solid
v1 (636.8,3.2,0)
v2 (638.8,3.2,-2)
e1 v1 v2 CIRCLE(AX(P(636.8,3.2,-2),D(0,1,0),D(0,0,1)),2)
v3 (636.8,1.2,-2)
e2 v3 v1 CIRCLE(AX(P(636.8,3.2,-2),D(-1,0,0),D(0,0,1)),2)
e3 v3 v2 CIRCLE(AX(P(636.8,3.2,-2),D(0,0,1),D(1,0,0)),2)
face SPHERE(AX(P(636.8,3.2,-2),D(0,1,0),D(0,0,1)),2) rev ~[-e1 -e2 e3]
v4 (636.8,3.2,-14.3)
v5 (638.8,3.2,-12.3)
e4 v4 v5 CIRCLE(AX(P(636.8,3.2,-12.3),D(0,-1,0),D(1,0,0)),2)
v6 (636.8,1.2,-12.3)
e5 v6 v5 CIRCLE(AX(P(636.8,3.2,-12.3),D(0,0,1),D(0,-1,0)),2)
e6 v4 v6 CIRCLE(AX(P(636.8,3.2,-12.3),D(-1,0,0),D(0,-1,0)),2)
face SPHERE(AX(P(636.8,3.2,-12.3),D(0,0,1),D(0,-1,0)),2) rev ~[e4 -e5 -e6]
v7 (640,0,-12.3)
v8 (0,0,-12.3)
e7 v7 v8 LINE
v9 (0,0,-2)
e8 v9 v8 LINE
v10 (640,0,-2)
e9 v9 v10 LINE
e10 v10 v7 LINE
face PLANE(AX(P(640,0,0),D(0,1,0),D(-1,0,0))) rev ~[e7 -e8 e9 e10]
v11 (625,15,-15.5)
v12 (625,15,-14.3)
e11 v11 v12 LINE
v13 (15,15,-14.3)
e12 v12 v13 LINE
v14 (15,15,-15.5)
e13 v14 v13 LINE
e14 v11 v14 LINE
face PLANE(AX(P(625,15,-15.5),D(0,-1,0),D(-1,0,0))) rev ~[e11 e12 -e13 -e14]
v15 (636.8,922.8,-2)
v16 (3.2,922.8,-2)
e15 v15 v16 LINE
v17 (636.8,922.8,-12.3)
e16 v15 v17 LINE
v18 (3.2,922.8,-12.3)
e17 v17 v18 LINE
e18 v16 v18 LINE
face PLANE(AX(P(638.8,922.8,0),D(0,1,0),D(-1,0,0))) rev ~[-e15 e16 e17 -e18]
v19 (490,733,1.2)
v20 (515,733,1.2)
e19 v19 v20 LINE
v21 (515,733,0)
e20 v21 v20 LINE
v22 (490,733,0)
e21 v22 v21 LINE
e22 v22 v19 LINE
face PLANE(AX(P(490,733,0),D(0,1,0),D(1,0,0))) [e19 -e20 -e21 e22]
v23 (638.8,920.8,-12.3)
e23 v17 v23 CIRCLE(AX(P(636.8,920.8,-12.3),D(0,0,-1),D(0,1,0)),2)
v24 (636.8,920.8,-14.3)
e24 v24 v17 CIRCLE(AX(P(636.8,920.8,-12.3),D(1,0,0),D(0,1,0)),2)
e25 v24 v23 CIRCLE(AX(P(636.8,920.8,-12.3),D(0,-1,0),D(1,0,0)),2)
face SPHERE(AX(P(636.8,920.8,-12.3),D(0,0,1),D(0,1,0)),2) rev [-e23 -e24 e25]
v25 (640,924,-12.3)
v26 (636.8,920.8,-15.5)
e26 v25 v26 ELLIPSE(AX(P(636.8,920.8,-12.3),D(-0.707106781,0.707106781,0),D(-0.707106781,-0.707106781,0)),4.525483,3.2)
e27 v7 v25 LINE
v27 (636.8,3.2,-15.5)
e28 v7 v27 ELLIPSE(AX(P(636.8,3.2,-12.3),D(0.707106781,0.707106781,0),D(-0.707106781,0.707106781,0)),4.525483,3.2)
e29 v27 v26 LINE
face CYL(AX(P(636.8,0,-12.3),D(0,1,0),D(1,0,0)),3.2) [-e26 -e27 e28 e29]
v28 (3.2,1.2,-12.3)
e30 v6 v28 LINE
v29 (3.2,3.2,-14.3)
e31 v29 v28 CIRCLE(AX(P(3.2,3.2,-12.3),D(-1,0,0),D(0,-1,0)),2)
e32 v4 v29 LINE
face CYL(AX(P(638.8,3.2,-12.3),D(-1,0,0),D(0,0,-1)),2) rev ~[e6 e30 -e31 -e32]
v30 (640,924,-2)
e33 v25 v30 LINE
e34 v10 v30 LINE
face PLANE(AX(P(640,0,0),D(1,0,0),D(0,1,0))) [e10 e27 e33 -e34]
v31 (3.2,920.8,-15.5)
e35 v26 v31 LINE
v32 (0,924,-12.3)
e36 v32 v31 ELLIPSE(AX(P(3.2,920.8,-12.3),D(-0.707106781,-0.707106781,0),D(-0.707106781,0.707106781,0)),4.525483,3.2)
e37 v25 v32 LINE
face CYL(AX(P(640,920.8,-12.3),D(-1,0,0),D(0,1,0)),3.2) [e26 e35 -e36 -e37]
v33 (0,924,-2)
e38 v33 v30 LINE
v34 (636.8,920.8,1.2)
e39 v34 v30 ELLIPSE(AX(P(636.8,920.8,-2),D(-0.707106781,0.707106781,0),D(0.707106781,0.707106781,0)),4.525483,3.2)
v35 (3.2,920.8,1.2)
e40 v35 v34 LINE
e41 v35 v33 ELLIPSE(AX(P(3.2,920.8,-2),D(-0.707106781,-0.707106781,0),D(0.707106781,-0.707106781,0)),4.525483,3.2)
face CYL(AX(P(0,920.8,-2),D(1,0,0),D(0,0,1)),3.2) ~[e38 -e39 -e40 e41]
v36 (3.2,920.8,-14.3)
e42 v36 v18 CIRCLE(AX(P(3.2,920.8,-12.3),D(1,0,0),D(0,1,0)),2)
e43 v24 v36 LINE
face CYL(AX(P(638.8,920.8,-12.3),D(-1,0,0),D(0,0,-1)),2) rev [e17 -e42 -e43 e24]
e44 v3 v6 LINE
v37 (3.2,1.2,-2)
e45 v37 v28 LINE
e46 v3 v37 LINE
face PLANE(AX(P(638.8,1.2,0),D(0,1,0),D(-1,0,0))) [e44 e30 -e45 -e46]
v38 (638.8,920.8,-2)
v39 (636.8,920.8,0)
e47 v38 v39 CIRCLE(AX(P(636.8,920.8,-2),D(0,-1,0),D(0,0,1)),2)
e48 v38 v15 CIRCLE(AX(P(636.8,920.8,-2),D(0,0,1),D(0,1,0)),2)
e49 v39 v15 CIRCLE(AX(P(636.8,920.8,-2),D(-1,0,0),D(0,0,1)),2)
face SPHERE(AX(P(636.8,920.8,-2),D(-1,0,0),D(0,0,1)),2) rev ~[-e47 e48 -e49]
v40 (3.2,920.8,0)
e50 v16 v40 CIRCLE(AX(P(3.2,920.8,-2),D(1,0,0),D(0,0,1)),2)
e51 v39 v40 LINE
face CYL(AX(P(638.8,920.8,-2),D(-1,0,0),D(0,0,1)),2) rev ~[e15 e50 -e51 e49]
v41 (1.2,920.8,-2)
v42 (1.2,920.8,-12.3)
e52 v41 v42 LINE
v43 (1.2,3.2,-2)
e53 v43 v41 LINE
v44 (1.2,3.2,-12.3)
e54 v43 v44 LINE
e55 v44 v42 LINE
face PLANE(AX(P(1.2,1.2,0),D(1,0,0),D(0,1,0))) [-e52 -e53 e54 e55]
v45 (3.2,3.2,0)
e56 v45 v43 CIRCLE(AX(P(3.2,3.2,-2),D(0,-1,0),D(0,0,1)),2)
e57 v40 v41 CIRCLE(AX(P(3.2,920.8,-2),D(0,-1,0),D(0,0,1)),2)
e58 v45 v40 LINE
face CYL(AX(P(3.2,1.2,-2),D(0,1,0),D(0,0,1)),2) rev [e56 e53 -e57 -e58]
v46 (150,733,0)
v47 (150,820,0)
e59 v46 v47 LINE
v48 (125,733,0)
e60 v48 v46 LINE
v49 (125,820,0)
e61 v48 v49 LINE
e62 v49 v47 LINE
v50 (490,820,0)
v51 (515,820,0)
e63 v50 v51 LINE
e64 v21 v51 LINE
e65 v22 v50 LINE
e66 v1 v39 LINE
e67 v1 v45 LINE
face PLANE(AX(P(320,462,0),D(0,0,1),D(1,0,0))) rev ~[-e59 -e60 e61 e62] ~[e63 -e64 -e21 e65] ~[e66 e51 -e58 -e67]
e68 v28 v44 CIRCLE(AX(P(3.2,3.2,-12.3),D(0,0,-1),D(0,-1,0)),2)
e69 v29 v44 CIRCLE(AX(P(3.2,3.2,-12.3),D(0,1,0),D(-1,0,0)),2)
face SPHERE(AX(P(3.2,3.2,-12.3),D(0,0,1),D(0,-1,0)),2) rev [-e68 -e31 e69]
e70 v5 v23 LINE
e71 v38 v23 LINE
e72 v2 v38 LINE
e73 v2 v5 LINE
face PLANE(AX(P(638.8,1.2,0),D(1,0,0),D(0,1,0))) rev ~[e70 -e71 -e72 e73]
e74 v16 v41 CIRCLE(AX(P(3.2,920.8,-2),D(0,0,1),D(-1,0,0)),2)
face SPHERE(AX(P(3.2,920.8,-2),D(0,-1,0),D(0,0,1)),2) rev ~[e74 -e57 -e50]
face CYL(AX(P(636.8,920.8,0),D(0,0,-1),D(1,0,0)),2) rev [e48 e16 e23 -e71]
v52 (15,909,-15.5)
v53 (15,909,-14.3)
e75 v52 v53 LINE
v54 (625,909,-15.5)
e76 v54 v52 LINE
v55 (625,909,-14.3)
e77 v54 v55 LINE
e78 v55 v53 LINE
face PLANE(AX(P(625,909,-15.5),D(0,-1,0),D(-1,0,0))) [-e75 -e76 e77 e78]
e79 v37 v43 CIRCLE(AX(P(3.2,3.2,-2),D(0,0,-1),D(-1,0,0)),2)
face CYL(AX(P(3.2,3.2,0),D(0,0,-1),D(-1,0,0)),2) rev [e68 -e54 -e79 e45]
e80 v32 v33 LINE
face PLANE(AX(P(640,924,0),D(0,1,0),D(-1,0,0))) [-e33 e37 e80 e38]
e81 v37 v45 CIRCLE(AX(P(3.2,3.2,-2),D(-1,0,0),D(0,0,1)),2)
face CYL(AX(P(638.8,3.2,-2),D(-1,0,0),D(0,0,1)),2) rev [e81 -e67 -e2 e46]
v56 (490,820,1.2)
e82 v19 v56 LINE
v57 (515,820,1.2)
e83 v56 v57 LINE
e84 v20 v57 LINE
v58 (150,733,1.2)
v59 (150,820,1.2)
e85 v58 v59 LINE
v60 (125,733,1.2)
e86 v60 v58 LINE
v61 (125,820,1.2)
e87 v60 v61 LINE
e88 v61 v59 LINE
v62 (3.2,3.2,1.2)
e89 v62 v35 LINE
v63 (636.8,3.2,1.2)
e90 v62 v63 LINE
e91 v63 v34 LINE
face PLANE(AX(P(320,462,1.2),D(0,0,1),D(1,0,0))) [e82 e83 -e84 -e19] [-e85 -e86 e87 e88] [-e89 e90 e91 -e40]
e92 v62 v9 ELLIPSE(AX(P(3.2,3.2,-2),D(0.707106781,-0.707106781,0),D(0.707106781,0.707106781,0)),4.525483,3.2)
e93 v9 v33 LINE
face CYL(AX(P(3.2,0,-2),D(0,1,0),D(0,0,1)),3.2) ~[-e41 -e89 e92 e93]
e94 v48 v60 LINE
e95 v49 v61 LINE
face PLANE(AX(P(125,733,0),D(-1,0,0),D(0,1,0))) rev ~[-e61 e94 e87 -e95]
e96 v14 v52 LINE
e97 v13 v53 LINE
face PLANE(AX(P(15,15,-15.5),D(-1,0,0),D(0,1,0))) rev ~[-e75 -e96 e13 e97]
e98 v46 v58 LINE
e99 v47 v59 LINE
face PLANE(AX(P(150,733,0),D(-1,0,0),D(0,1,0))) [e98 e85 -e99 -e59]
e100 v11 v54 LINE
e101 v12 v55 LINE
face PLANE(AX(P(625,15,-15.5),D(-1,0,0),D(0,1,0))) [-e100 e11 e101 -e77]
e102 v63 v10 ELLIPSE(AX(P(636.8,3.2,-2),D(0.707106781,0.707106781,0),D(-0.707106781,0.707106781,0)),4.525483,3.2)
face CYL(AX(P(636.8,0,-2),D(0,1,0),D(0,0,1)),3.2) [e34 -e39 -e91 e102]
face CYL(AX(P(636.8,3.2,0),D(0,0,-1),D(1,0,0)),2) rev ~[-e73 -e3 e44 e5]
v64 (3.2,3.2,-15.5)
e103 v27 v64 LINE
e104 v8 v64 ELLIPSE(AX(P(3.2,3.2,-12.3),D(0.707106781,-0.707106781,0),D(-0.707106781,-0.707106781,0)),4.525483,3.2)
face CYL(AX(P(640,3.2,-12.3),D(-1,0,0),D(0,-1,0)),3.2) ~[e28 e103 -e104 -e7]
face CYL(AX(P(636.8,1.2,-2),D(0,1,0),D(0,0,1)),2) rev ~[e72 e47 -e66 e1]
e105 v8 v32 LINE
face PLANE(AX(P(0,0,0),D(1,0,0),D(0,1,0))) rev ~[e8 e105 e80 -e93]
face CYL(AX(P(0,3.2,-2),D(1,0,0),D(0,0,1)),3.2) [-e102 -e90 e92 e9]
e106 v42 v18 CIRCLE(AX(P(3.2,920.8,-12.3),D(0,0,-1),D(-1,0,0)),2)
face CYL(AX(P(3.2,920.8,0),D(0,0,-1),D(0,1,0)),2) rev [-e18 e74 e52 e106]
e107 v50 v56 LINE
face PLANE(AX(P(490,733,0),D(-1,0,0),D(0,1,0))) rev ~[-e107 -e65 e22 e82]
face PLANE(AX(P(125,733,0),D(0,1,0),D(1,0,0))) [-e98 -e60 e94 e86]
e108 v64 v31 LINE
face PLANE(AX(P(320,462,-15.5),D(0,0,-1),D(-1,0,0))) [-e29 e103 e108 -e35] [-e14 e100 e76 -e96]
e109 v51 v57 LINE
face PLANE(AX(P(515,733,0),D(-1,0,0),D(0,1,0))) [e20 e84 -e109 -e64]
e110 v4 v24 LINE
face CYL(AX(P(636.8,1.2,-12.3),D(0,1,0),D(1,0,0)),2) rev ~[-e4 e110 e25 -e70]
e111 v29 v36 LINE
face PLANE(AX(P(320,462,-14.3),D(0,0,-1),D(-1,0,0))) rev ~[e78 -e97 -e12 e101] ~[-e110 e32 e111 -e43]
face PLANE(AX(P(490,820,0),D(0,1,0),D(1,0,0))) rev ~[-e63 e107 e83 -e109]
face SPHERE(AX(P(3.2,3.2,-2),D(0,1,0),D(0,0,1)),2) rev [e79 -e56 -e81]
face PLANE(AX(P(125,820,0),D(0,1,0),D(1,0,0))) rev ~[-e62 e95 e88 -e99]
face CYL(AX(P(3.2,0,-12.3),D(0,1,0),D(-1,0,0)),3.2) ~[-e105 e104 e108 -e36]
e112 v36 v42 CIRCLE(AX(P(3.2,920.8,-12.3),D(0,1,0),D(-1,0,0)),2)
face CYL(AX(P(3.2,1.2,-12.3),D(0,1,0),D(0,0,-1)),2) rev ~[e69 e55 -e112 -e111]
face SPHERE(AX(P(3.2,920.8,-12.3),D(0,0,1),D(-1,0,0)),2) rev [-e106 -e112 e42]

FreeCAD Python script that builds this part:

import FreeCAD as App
import Part
import Sketcher
from FreeCAD import Vector


def edges_at(feature, points):
    """Names of the edges that pass closest to the given points."""
    edges = feature.Shape.Edges
    near = lambda p: min(range(len(edges)), key=lambda i: edges[i].distToShape(Part.Vertex(*p))[0])
    return sorted({f"Edge{near(p) + 1}" for p in points})

doc = App.newDocument("Part")
body = doc.addObject("PartDesign::Body", "Body")

sketch1 = body.newObject("Sketcher::SketchObject", "Sketch")
sketch1.AttachmentSupport = (doc.getObject("XY_Plane"), [""])
sketch1.MapMode = "FlatFace"
sketch1.addGeometry([
    Part.LineSegment(Vector(0, 924, 0), Vector(0, 0, 0)),
    Part.LineSegment(Vector(0, 0, 0), Vector(640, 0, 0)),
    Part.LineSegment(Vector(640, 0, 0), Vector(640, 924, 0)),
    Part.LineSegment(Vector(640, 924, 0), Vector(0, 924, 0)),
    Part.LineSegment(Vector(150, 733, 0), Vector(125, 733, 0)),
    Part.LineSegment(Vector(125, 733, 0), Vector(125, 820, 0)),
    Part.LineSegment(Vector(125, 820, 0), Vector(150, 820, 0)),
    Part.LineSegment(Vector(150, 820, 0), Vector(150, 733, 0)),
    Part.LineSegment(Vector(515, 733, 0), Vector(490, 733, 0)),
    Part.LineSegment(Vector(490, 733, 0), Vector(490, 820, 0)),
    Part.LineSegment(Vector(490, 820, 0), Vector(515, 820, 0)),
    Part.LineSegment(Vector(515, 820, 0), Vector(515, 733, 0)),
], False)
sketch1.addConstraint([
    Sketcher.Constraint("Coincident", 0, 2, 1, 1),
    Sketcher.Constraint("Coincident", 1, 2, 2, 1),
    Sketcher.Constraint("Coincident", 2, 2, 3, 1),
    Sketcher.Constraint("Coincident", 3, 2, 0, 1),
    Sketcher.Constraint("Coincident", 4, 2, 5, 1),
    Sketcher.Constraint("Coincident", 5, 2, 6, 1),
    Sketcher.Constraint("Coincident", 6, 2, 7, 1),
    Sketcher.Constraint("Coincident", 7, 2, 4, 1),
    Sketcher.Constraint("Coincident", 8, 2, 9, 1),
    Sketcher.Constraint("Coincident", 9, 2, 10, 1),
    Sketcher.Constraint("Coincident", 10, 2, 11, 1),
    Sketcher.Constraint("Coincident", 11, 2, 8, 1),
    Sketcher.Constraint("Vertical", 0),
    Sketcher.Constraint("Horizontal", 1),
    Sketcher.Constraint("Vertical", 2),
    Sketcher.Constraint("Horizontal", 3),
    Sketcher.Constraint("Horizontal", 4),
    Sketcher.Constraint("Vertical", 5),
    Sketcher.Constraint("Horizontal", 6),
    Sketcher.Constraint("Vertical", 7),
    Sketcher.Constraint("Horizontal", 8),
    Sketcher.Constraint("Vertical", 9),
    Sketcher.Constraint("Horizontal", 10),
    Sketcher.Constraint("Vertical", 11),
    Sketcher.Constraint("Coincident", 0, 2, -1, 1),
    Sketcher.Constraint("Horizontal", 7, 2, 8, 2),
    Sketcher.Constraint("Horizontal", 6, 2, 9, 2),
    Sketcher.Constraint("Equal", 6, 8),
    Sketcher.Constraint("DistanceX", 1, 1, 1, 2, 640.0),
    Sketcher.Constraint("DistanceX", 4, 2, 4, 1, 25.0),
    Sketcher.Constraint("DistanceY", 0, 2, 0, 1, 924.0),
    Sketcher.Constraint("DistanceY", 5, 1, 5, 2, 87.0),
    Sketcher.Constraint("DistanceX", -1, 1, 4, 2, 125.0),
    Sketcher.Constraint("DistanceY", -1, 1, 4, 2, 733.0),
    Sketcher.Constraint("DistanceX", -1, 1, 8, 2, 490.0),
])
pad1 = body.newObject("PartDesign::Pad", "Pad")
pad1.Profile = sketch1
pad1.Length = 1.2

sketch2 = body.newObject("Sketcher::SketchObject", "Sketch001")
sketch2.AttachmentSupport = (doc.getObject("XY_Plane"), [""])
sketch2.MapMode = "FlatFace"
sketch2.addGeometry([
    Part.LineSegment(Vector(640, 924, 0), Vector(640, 0, 0)),
    Part.LineSegment(Vector(640, 0, 0), Vector(0, 0, 0)),
    Part.LineSegment(Vector(0, 0, 0), Vector(0, 924, 0)),
    Part.LineSegment(Vector(0, 924, 0), Vector(640, 924, 0)),
    Part.LineSegment(Vector(1.2, 1.2, 0), Vector(638.8, 1.2, 0)),
    Part.LineSegment(Vector(638.8, 1.2, 0), Vector(638.8, 922.8, 0)),
    Part.LineSegment(Vector(638.8, 922.8, 0), Vector(1.2, 922.8, 0)),
    Part.LineSegment(Vector(1.2, 922.8, 0), Vector(1.2, 1.2, 0)),
], False)
sketch2.addConstraint([
    Sketcher.Constraint("Coincident", 0, 2, 1, 1),
    Sketcher.Constraint("Coincident", 1, 2, 2, 1),
    Sketcher.Constraint("Coincident", 2, 2, 3, 1),
    Sketcher.Constraint("Coincident", 3, 2, 0, 1),
    Sketcher.Constraint("Coincident", 4, 2, 5, 1),
    Sketcher.Constraint("Coincident", 5, 2, 6, 1),
    Sketcher.Constraint("Coincident", 6, 2, 7, 1),
    Sketcher.Constraint("Coincident", 7, 2, 4, 1),
    Sketcher.Constraint("Vertical", 0),
    Sketcher.Constraint("Horizontal", 1),
    Sketcher.Constraint("Vertical", 2),
    Sketcher.Constraint("Horizontal", 3),
    Sketcher.Constraint("Horizontal", 4),
    Sketcher.Constraint("Vertical", 5),
    Sketcher.Constraint("Horizontal", 6),
    Sketcher.Constraint("Vertical", 7),
    Sketcher.Constraint("Coincident", 1, 2, -1, 1),
    Sketcher.Constraint("DistanceX", 1, 2, 1, 1, 640.0),
    Sketcher.Constraint("DistanceY", 0, 2, 0, 1, 924.0),
    Sketcher.Constraint("DistanceX", 4, 1, 4, 2, 637.6),
    Sketcher.Constraint("DistanceY", 5, 1, 5, 2, 921.6),
    Sketcher.Constraint("DistanceX", -1, 1, 4, 2, 638.8),
    Sketcher.Constraint("DistanceY", -1, 1, 4, 2, 1.2),
])
pad2 = body.newObject("PartDesign::Pad", "Pad001")
pad2.Profile = sketch2
pad2.Length = 15.5
pad2.Reversed = True

sketch3 = body.newObject("Sketcher::SketchObject", "Sketch002")
sketch3.AttachmentSupport = (doc.getObject("XY_Plane"), [""])
sketch3.MapMode = "FlatFace"
sketch3.AttachmentOffset = App.Placement(Vector(0, 0, -15.5), App.Rotation())
sketch3.addGeometry([
    Part.LineSegment(Vector(640, 924, 0), Vector(640, 0, 0)),
    Part.LineSegment(Vector(640, 0, 0), Vector(0, 0, 0)),
    Part.LineSegment(Vector(0, 0, 0), Vector(0, 924, 0)),
    Part.LineSegment(Vector(0, 924, 0), Vector(640, 924, 0)),
    Part.LineSegment(Vector(15, 15, 0), Vector(625, 15, 0)),
    Part.LineSegment(Vector(625, 15, 0), Vector(625, 909, 0)),
    Part.LineSegment(Vector(625, 909, 0), Vector(15, 909, 0)),
    Part.LineSegment(Vector(15, 909, 0), Vector(15, 15, 0)),
], False)
sketch3.addConstraint([
    Sketcher.Constraint("Coincident", 0, 2, 1, 1),
    Sketcher.Constraint("Coincident", 1, 2, 2, 1),
    Sketcher.Constraint("Coincident", 2, 2, 3, 1),
    Sketcher.Constraint("Coincident", 3, 2, 0, 1),
    Sketcher.Constraint("Coincident", 4, 2, 5, 1),
    Sketcher.Constraint("Coincident", 5, 2, 6, 1),
    Sketcher.Constraint("Coincident", 6, 2, 7, 1),
    Sketcher.Constraint("Coincident", 7, 2, 4, 1),
    Sketcher.Constraint("Vertical", 0),
    Sketcher.Constraint("Horizontal", 1),
    Sketcher.Constraint("Vertical", 2),
    Sketcher.Constraint("Horizontal", 3),
    Sketcher.Constraint("Horizontal", 4),
    Sketcher.Constraint("Vertical", 5),
    Sketcher.Constraint("Horizontal", 6),
    Sketcher.Constraint("Vertical", 7),
    Sketcher.Constraint("Coincident", 1, 2, -1, 1),
    Sketcher.Constraint("DistanceX", 1, 2, 1, 1, 640.0),
    Sketcher.Constraint("DistanceX", 4, 1, 4, 2, 610.0),
    Sketcher.Constraint("DistanceY", 0, 2, 0, 1, 924.0),
    Sketcher.Constraint("DistanceY", 5, 1, 5, 2, 894.0),
    Sketcher.Constraint("DistanceX", -1, 1, 4, 2, 625.0),
    Sketcher.Constraint("DistanceY", -1, 1, 4, 2, 15.0),
])
pad3 = body.newObject("PartDesign::Pad", "Pad002")
pad3.Profile = sketch3
pad3.Length = 1.2
doc.recompute()

fillet = body.newObject("PartDesign::Fillet", "Fillet")
fillet.Base = (pad3, edges_at(pad3, [
    (1.2, 462, 0),
    (320, 922.8, 0),
    (638.8, 462, 0),
    (320, 1.2, 0),
    (638.8, 1.2, -7.15),
    (1.2, 1.2, -7.15),
    (320, 1.2, -14.3),
    (638.8, 922.8, -7.15),
    (1.2, 922.8, -7.15),
    (1.2, 462, -14.3),
    (320, 922.8, -14.3),
    (638.8, 462, -14.3),
]))
fillet.Radius = 2
doc.recompute()

fillet2 = body.newObject("PartDesign::Fillet", "Fillet001")
fillet2.Base = (fillet, edges_at(fillet, [
    (640, 462, 1.2),
    (320, 924, 1.2),
    (0, 462, 1.2),
    (320, 0, 1.2),
]))
fillet2.Radius = 3.2
doc.recompute()

fillet3 = body.newObject("PartDesign::Fillet", "Fillet002")
fillet3.Base = (fillet2, edges_at(fillet2, [
    (320, 0, -15.5),
    (0, 462, -15.5),
    (320, 924, -15.5),
    (640, 462, -15.5),
]))
fillet3.Radius = 3.2

doc.recompute()
